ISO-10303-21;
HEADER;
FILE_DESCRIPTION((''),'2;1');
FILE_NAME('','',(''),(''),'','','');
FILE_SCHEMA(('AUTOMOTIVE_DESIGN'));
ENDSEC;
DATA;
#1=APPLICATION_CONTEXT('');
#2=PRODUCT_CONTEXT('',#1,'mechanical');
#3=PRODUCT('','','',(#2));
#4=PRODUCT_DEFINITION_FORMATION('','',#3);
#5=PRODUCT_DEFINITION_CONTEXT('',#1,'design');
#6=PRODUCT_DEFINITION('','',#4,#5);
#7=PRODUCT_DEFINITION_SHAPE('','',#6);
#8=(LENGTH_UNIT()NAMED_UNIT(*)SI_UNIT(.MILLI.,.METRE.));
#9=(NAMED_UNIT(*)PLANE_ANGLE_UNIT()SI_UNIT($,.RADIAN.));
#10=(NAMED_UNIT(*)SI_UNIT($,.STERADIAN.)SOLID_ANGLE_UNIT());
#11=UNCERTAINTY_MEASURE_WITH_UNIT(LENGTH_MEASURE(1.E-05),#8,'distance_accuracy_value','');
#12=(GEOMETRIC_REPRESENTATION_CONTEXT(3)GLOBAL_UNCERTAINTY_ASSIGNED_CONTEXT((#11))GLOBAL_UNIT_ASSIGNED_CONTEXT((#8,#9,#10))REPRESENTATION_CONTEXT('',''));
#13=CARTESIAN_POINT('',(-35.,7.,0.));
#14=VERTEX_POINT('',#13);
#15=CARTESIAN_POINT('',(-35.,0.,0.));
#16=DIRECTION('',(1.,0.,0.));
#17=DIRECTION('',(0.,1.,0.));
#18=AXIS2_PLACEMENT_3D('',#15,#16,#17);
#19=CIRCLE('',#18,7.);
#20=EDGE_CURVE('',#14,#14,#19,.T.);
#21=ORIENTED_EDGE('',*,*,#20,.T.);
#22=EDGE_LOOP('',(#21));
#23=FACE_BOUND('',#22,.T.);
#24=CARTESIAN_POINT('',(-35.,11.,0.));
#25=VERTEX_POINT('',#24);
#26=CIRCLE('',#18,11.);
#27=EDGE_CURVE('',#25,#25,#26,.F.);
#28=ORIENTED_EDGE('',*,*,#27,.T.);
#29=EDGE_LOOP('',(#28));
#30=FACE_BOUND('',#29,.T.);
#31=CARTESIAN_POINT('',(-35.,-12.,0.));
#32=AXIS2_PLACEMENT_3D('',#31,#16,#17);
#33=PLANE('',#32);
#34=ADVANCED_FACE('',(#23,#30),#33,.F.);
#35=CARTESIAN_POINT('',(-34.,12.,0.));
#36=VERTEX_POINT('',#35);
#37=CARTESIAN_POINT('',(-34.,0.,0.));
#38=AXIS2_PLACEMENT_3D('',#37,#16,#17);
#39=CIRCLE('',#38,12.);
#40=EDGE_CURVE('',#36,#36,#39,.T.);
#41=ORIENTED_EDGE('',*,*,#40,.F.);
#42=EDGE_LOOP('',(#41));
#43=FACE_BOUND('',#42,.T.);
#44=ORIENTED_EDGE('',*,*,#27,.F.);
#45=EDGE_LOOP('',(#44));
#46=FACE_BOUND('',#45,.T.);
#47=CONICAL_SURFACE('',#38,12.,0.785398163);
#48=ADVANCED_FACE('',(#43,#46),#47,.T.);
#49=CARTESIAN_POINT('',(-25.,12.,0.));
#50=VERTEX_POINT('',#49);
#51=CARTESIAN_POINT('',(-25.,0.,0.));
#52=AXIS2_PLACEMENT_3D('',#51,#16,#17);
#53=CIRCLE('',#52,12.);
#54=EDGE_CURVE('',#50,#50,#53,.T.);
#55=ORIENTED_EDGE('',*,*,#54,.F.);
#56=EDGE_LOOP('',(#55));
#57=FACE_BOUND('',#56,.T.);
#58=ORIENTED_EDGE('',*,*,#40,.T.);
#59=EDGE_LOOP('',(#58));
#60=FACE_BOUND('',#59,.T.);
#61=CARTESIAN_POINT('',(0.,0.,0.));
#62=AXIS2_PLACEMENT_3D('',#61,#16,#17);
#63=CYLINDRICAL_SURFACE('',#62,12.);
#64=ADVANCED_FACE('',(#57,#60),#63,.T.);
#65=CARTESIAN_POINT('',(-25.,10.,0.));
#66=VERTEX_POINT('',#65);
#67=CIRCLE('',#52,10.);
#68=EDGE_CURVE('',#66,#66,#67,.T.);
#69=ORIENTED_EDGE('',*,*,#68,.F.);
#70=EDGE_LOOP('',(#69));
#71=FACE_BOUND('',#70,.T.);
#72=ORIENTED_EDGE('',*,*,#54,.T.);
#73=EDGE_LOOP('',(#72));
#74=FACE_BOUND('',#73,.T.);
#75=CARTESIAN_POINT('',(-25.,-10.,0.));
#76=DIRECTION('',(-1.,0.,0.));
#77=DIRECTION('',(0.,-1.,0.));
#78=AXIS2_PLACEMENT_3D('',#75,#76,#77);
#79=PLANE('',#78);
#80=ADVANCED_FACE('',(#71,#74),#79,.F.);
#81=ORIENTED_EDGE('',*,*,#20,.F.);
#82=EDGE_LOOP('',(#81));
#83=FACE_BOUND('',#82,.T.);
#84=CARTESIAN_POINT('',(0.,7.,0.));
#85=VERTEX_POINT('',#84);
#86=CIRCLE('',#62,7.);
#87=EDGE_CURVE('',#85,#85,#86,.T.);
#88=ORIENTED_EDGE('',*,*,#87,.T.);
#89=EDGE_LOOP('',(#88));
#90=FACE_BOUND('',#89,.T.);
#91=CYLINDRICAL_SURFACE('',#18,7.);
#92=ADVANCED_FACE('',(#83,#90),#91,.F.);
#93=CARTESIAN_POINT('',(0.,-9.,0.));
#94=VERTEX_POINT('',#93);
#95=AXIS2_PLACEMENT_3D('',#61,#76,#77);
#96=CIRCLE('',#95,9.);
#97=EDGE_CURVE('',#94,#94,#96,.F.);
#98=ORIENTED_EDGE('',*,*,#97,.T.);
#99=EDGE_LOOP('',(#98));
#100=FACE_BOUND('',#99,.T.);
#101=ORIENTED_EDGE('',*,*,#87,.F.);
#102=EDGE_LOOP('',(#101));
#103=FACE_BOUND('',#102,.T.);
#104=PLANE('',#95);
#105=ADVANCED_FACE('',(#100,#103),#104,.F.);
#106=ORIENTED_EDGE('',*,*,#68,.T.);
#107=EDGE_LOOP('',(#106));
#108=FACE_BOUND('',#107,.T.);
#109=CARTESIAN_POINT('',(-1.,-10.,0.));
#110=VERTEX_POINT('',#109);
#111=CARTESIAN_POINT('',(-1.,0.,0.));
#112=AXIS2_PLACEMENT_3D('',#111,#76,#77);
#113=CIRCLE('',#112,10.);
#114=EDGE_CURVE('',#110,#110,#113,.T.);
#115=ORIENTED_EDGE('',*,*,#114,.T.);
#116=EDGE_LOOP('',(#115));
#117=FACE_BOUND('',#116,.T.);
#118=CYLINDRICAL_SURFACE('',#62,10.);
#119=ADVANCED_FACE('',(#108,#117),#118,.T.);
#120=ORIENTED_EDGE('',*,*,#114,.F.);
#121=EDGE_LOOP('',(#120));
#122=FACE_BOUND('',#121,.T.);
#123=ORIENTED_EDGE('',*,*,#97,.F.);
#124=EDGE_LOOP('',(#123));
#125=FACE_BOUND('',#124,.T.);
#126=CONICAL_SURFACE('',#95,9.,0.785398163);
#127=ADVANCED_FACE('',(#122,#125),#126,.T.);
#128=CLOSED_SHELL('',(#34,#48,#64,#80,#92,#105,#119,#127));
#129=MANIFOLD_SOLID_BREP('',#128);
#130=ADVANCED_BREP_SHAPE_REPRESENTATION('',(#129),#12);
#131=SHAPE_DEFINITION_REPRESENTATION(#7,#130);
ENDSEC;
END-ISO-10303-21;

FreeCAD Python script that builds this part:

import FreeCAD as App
import Part
import Sketcher

V = App.Vector


def edges_at(feature, points):
    """Names of the edges that pass closest to the given points."""
    edges = feature.Shape.Edges
    near = lambda p: min(range(len(edges)), key=lambda i: edges[i].distToShape(Part.Vertex(*p))[0])
    return sorted({f"Edge{near(p) + 1}" for p in points})


def add_polygon(sketch, points):
    """Adds a closed chain of lines whose ends are joined by coincident constraints."""
    first, n = sketch.GeometryCount, len(points)
    for a, b in zip(points, points[1:] + points[:1]):
        sketch.addGeometry(Part.LineSegment(App.Vector(*a, 0), App.Vector(*b, 0)), False)
    for i in range(n):
        sketch.addConstraint(Sketcher.Constraint("Coincident", first + i, 2, first + (i + 1) % n, 1))

doc = App.newDocument("Part")
body = doc.addObject("PartDesign::Body", "Body")

# Sketch on XY plane
sketch1 = body.newObject("Sketcher::SketchObject", "Sketch")
sketch1.AttachmentSupport = (doc.getObject("XY_Plane"), [""])
sketch1.MapMode = "FlatFace"
add_polygon(sketch1, [(0, -10), (0, 0), (-35, 0), (-35, -12), (-25, -12), (-25, -10)])  # lines 0-5
sketch1.addConstraint([
    Sketcher.Constraint("Vertical", 0),
    Sketcher.Constraint("Horizontal", 1),
    Sketcher.Constraint("Vertical", 2),
    Sketcher.Constraint("Horizontal", 3),
    Sketcher.Constraint("Vertical", 4),
    Sketcher.Constraint("Horizontal", 5),
    Sketcher.Constraint("Coincident", 0, 2, -1, 1),
    Sketcher.Constraint("Equal", 3, 0),
    Sketcher.Constraint("DistanceX", 1, 2, 1, 1, 35.0),
    Sketcher.Constraint("DistanceX", 3, 1, 3, 2, 10.0),
    Sketcher.Constraint("DistanceY", 2, 2, 2, 1, 12.0),
])
revolution = body.newObject("PartDesign::Revolution", "Revolution")
revolution.Profile = sketch1
revolution.ReferenceAxis = (sketch1, ["H_Axis"])
revolution.Angle = 360

# Sketch on YZ plane
sketch2 = body.newObject("Sketcher::SketchObject", "Sketch001")
sketch2.AttachmentSupport = (doc.getObject("YZ_Plane"), [""])
sketch2.MapMode = "FlatFace"
sketch2.addGeometry(Part.Circle(V(0, 0, 0), V(0, 0, 1), 7), False)
sketch2.addConstraint([
    Sketcher.Constraint("Coincident", 0, 3, -1, 1),
    Sketcher.Constraint("Diameter", 0, 14.0),
])
pocket1 = body.newObject("PartDesign::Pocket", "Pocket")
pocket1.Profile = sketch2
pocket1.Type = "ThroughAll"
doc.recompute()

chamfer = body.newObject("PartDesign::Chamfer", "Chamfer")
chamfer.Base = (pocket1, edges_at(pocket1, [(-35, -12, 0), (0, -10, 0)]))
chamfer.Size = 1

doc.recompute()
